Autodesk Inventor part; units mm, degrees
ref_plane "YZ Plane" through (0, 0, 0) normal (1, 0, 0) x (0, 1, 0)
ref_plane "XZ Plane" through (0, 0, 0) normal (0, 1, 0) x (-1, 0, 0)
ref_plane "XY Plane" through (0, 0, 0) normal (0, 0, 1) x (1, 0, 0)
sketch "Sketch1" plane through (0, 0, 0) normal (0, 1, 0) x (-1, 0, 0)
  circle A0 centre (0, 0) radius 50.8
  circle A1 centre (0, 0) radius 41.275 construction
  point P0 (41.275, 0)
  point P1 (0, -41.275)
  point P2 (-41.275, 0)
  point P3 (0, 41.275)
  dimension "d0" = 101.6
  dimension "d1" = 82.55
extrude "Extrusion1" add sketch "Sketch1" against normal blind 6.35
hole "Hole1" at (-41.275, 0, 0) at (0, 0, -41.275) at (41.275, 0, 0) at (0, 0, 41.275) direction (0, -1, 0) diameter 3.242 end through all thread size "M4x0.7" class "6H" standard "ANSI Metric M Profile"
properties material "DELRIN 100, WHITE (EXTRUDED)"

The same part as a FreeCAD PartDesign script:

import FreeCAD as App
import Part
import Sketcher

V = App.Vector
Q = App.Units.Quantity

doc = App.newDocument("Part")
body = doc.addObject("PartDesign::Body", "Body")

# Sketch on XZ plane
sketch1 = body.newObject("Sketcher::SketchObject", "Sketch")
sketch1.AttachmentSupport = (doc.getObject("XZ_Plane"), [""])
sketch1.MapMode = "FlatFace"
sketch1.addGeometry(Part.Circle(V(0, 0, 0), V(0, 0, 1), 51), False)
sketch1.addConstraint(Sketcher.Constraint("Coincident", 0, 3, -1, 1))
sketch1.addConstraint(Sketcher.Constraint("Diameter", 0, Q("4 in")))
pad1 = body.newObject("PartDesign::Pad", "Pad")
pad1.Profile = sketch1
pad1.Length = Q("0.25 in")

# Sketch on XZ plane
sketch2 = body.newObject("Sketcher::SketchObject", "Sketch001")
sketch2.AttachmentSupport = (doc.getObject("XZ_Plane"), [""])
sketch2.MapMode = "FlatFace"
sketch2.addGeometry(Part.Circle(V(-41.3, 0, 0), V(0, 0, 1), 1.6), False)
sketch2.addGeometry(Part.Circle(V(0, -41.3, 0), V(0, 0, 1), 1.6), False)
sketch2.addGeometry(Part.Circle(V(41.3, 0, 0), V(0, 0, 1), 1.6), False)
sketch2.addGeometry(Part.Circle(V(0, 41.3, 0), V(0, 0, 1), 1.6), False)
sketch2.addConstraint(Sketcher.Constraint("Equal", 0, 1))
sketch2.addConstraint(Sketcher.Constraint("Equal", 1, 2))
sketch2.addConstraint(Sketcher.Constraint("Equal", 2, 3))
sketch2.addConstraint(Sketcher.Constraint("Symmetric", 0, 3, 2, 3, -1, 1))
sketch2.addConstraint(Sketcher.Constraint("Symmetric", 1, 3, 3, 3, -1, 1))
sketch2.addConstraint(Sketcher.Constraint("PointOnObject", 0, 3, -1))
sketch2.addConstraint(Sketcher.Constraint("PointOnObject", 1, 3, -2))
sketch2.addConstraint(Sketcher.Constraint("Diameter", 0, 3.242))
sketch2.addConstraint(Sketcher.Constraint("DistanceX", 0, 3, 2, 3, Q("3.25 in")))
sketch2.addConstraint(Sketcher.Constraint("DistanceY", 1, 3, 3, 3, Q("3.25 in")))
doc.recompute()
hole = body.newObject("PartDesign::Hole", "Hole")
hole.Profile = sketch2
hole.ThreadType = "None"
hole.Diameter = 3.242
hole.DepthType = "ThroughAll"
hole.Reversed = True

doc.recompute()
